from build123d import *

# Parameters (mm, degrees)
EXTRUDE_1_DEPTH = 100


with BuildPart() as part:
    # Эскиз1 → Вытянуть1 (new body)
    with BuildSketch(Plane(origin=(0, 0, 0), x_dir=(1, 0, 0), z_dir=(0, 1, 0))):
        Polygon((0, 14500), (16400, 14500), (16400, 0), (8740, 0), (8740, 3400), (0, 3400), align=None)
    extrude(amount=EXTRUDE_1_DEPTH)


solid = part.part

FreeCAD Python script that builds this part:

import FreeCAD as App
import Part
import Sketcher

V = App.Vector


def add_polygon(sketch, points):
    """Adds a closed chain of lines whose ends are joined by coincident constraints."""
    first, n = sketch.GeometryCount, len(points)
    for a, b in zip(points, points[1:] + points[:1]):
        sketch.addGeometry(Part.LineSegment(App.Vector(*a, 0), App.Vector(*b, 0)), False)
    for i in range(n):
        sketch.addConstraint(Sketcher.Constraint("Coincident", first + i, 2, first + (i + 1) % n, 1))

doc = App.newDocument("Part")
body = doc.addObject("PartDesign::Body", "Body")

# Sketch on XZ plane
sketch1 = body.newObject("Sketcher::SketchObject", "Sketch")
sketch1.AttachmentSupport = (doc.getObject("XZ_Plane"), [""])
sketch1.MapMode = "FlatFace"
add_polygon(sketch1, [(16400, -14500), (0, -14500), (0, -3400), (8740, -3400), (8740, 0), (16400, 0)])  # lines 0-5
sketch1.addConstraint([
    Sketcher.Constraint("Horizontal", 0),
    Sketcher.Constraint("Vertical", 1),
    Sketcher.Constraint("Horizontal", 2),
    Sketcher.Constraint("Vertical", 3),
    Sketcher.Constraint("Horizontal", 4),
    Sketcher.Constraint("Vertical", 5),
    Sketcher.Constraint("PointOnObject", 0, 2, -2),
    Sketcher.Constraint("PointOnObject", 3, 2, -1),
    Sketcher.Constraint("DistanceX", 0, 2, 0, 1, 16400.0),
    Sketcher.Constraint("DistanceX", 2, 1, 2, 2, 8740.0),
    Sketcher.Constraint("DistanceY", 1, 1, 1, 2, 11100.0),
    Sketcher.Constraint("DistanceY", 3, 1, 3, 2, 3400.0),
])
pad1 = body.newObject("PartDesign::Pad", "Pad")
pad1.Profile = sketch1
pad1.Length = 100
pad1.Reversed = True

doc.recompute()
